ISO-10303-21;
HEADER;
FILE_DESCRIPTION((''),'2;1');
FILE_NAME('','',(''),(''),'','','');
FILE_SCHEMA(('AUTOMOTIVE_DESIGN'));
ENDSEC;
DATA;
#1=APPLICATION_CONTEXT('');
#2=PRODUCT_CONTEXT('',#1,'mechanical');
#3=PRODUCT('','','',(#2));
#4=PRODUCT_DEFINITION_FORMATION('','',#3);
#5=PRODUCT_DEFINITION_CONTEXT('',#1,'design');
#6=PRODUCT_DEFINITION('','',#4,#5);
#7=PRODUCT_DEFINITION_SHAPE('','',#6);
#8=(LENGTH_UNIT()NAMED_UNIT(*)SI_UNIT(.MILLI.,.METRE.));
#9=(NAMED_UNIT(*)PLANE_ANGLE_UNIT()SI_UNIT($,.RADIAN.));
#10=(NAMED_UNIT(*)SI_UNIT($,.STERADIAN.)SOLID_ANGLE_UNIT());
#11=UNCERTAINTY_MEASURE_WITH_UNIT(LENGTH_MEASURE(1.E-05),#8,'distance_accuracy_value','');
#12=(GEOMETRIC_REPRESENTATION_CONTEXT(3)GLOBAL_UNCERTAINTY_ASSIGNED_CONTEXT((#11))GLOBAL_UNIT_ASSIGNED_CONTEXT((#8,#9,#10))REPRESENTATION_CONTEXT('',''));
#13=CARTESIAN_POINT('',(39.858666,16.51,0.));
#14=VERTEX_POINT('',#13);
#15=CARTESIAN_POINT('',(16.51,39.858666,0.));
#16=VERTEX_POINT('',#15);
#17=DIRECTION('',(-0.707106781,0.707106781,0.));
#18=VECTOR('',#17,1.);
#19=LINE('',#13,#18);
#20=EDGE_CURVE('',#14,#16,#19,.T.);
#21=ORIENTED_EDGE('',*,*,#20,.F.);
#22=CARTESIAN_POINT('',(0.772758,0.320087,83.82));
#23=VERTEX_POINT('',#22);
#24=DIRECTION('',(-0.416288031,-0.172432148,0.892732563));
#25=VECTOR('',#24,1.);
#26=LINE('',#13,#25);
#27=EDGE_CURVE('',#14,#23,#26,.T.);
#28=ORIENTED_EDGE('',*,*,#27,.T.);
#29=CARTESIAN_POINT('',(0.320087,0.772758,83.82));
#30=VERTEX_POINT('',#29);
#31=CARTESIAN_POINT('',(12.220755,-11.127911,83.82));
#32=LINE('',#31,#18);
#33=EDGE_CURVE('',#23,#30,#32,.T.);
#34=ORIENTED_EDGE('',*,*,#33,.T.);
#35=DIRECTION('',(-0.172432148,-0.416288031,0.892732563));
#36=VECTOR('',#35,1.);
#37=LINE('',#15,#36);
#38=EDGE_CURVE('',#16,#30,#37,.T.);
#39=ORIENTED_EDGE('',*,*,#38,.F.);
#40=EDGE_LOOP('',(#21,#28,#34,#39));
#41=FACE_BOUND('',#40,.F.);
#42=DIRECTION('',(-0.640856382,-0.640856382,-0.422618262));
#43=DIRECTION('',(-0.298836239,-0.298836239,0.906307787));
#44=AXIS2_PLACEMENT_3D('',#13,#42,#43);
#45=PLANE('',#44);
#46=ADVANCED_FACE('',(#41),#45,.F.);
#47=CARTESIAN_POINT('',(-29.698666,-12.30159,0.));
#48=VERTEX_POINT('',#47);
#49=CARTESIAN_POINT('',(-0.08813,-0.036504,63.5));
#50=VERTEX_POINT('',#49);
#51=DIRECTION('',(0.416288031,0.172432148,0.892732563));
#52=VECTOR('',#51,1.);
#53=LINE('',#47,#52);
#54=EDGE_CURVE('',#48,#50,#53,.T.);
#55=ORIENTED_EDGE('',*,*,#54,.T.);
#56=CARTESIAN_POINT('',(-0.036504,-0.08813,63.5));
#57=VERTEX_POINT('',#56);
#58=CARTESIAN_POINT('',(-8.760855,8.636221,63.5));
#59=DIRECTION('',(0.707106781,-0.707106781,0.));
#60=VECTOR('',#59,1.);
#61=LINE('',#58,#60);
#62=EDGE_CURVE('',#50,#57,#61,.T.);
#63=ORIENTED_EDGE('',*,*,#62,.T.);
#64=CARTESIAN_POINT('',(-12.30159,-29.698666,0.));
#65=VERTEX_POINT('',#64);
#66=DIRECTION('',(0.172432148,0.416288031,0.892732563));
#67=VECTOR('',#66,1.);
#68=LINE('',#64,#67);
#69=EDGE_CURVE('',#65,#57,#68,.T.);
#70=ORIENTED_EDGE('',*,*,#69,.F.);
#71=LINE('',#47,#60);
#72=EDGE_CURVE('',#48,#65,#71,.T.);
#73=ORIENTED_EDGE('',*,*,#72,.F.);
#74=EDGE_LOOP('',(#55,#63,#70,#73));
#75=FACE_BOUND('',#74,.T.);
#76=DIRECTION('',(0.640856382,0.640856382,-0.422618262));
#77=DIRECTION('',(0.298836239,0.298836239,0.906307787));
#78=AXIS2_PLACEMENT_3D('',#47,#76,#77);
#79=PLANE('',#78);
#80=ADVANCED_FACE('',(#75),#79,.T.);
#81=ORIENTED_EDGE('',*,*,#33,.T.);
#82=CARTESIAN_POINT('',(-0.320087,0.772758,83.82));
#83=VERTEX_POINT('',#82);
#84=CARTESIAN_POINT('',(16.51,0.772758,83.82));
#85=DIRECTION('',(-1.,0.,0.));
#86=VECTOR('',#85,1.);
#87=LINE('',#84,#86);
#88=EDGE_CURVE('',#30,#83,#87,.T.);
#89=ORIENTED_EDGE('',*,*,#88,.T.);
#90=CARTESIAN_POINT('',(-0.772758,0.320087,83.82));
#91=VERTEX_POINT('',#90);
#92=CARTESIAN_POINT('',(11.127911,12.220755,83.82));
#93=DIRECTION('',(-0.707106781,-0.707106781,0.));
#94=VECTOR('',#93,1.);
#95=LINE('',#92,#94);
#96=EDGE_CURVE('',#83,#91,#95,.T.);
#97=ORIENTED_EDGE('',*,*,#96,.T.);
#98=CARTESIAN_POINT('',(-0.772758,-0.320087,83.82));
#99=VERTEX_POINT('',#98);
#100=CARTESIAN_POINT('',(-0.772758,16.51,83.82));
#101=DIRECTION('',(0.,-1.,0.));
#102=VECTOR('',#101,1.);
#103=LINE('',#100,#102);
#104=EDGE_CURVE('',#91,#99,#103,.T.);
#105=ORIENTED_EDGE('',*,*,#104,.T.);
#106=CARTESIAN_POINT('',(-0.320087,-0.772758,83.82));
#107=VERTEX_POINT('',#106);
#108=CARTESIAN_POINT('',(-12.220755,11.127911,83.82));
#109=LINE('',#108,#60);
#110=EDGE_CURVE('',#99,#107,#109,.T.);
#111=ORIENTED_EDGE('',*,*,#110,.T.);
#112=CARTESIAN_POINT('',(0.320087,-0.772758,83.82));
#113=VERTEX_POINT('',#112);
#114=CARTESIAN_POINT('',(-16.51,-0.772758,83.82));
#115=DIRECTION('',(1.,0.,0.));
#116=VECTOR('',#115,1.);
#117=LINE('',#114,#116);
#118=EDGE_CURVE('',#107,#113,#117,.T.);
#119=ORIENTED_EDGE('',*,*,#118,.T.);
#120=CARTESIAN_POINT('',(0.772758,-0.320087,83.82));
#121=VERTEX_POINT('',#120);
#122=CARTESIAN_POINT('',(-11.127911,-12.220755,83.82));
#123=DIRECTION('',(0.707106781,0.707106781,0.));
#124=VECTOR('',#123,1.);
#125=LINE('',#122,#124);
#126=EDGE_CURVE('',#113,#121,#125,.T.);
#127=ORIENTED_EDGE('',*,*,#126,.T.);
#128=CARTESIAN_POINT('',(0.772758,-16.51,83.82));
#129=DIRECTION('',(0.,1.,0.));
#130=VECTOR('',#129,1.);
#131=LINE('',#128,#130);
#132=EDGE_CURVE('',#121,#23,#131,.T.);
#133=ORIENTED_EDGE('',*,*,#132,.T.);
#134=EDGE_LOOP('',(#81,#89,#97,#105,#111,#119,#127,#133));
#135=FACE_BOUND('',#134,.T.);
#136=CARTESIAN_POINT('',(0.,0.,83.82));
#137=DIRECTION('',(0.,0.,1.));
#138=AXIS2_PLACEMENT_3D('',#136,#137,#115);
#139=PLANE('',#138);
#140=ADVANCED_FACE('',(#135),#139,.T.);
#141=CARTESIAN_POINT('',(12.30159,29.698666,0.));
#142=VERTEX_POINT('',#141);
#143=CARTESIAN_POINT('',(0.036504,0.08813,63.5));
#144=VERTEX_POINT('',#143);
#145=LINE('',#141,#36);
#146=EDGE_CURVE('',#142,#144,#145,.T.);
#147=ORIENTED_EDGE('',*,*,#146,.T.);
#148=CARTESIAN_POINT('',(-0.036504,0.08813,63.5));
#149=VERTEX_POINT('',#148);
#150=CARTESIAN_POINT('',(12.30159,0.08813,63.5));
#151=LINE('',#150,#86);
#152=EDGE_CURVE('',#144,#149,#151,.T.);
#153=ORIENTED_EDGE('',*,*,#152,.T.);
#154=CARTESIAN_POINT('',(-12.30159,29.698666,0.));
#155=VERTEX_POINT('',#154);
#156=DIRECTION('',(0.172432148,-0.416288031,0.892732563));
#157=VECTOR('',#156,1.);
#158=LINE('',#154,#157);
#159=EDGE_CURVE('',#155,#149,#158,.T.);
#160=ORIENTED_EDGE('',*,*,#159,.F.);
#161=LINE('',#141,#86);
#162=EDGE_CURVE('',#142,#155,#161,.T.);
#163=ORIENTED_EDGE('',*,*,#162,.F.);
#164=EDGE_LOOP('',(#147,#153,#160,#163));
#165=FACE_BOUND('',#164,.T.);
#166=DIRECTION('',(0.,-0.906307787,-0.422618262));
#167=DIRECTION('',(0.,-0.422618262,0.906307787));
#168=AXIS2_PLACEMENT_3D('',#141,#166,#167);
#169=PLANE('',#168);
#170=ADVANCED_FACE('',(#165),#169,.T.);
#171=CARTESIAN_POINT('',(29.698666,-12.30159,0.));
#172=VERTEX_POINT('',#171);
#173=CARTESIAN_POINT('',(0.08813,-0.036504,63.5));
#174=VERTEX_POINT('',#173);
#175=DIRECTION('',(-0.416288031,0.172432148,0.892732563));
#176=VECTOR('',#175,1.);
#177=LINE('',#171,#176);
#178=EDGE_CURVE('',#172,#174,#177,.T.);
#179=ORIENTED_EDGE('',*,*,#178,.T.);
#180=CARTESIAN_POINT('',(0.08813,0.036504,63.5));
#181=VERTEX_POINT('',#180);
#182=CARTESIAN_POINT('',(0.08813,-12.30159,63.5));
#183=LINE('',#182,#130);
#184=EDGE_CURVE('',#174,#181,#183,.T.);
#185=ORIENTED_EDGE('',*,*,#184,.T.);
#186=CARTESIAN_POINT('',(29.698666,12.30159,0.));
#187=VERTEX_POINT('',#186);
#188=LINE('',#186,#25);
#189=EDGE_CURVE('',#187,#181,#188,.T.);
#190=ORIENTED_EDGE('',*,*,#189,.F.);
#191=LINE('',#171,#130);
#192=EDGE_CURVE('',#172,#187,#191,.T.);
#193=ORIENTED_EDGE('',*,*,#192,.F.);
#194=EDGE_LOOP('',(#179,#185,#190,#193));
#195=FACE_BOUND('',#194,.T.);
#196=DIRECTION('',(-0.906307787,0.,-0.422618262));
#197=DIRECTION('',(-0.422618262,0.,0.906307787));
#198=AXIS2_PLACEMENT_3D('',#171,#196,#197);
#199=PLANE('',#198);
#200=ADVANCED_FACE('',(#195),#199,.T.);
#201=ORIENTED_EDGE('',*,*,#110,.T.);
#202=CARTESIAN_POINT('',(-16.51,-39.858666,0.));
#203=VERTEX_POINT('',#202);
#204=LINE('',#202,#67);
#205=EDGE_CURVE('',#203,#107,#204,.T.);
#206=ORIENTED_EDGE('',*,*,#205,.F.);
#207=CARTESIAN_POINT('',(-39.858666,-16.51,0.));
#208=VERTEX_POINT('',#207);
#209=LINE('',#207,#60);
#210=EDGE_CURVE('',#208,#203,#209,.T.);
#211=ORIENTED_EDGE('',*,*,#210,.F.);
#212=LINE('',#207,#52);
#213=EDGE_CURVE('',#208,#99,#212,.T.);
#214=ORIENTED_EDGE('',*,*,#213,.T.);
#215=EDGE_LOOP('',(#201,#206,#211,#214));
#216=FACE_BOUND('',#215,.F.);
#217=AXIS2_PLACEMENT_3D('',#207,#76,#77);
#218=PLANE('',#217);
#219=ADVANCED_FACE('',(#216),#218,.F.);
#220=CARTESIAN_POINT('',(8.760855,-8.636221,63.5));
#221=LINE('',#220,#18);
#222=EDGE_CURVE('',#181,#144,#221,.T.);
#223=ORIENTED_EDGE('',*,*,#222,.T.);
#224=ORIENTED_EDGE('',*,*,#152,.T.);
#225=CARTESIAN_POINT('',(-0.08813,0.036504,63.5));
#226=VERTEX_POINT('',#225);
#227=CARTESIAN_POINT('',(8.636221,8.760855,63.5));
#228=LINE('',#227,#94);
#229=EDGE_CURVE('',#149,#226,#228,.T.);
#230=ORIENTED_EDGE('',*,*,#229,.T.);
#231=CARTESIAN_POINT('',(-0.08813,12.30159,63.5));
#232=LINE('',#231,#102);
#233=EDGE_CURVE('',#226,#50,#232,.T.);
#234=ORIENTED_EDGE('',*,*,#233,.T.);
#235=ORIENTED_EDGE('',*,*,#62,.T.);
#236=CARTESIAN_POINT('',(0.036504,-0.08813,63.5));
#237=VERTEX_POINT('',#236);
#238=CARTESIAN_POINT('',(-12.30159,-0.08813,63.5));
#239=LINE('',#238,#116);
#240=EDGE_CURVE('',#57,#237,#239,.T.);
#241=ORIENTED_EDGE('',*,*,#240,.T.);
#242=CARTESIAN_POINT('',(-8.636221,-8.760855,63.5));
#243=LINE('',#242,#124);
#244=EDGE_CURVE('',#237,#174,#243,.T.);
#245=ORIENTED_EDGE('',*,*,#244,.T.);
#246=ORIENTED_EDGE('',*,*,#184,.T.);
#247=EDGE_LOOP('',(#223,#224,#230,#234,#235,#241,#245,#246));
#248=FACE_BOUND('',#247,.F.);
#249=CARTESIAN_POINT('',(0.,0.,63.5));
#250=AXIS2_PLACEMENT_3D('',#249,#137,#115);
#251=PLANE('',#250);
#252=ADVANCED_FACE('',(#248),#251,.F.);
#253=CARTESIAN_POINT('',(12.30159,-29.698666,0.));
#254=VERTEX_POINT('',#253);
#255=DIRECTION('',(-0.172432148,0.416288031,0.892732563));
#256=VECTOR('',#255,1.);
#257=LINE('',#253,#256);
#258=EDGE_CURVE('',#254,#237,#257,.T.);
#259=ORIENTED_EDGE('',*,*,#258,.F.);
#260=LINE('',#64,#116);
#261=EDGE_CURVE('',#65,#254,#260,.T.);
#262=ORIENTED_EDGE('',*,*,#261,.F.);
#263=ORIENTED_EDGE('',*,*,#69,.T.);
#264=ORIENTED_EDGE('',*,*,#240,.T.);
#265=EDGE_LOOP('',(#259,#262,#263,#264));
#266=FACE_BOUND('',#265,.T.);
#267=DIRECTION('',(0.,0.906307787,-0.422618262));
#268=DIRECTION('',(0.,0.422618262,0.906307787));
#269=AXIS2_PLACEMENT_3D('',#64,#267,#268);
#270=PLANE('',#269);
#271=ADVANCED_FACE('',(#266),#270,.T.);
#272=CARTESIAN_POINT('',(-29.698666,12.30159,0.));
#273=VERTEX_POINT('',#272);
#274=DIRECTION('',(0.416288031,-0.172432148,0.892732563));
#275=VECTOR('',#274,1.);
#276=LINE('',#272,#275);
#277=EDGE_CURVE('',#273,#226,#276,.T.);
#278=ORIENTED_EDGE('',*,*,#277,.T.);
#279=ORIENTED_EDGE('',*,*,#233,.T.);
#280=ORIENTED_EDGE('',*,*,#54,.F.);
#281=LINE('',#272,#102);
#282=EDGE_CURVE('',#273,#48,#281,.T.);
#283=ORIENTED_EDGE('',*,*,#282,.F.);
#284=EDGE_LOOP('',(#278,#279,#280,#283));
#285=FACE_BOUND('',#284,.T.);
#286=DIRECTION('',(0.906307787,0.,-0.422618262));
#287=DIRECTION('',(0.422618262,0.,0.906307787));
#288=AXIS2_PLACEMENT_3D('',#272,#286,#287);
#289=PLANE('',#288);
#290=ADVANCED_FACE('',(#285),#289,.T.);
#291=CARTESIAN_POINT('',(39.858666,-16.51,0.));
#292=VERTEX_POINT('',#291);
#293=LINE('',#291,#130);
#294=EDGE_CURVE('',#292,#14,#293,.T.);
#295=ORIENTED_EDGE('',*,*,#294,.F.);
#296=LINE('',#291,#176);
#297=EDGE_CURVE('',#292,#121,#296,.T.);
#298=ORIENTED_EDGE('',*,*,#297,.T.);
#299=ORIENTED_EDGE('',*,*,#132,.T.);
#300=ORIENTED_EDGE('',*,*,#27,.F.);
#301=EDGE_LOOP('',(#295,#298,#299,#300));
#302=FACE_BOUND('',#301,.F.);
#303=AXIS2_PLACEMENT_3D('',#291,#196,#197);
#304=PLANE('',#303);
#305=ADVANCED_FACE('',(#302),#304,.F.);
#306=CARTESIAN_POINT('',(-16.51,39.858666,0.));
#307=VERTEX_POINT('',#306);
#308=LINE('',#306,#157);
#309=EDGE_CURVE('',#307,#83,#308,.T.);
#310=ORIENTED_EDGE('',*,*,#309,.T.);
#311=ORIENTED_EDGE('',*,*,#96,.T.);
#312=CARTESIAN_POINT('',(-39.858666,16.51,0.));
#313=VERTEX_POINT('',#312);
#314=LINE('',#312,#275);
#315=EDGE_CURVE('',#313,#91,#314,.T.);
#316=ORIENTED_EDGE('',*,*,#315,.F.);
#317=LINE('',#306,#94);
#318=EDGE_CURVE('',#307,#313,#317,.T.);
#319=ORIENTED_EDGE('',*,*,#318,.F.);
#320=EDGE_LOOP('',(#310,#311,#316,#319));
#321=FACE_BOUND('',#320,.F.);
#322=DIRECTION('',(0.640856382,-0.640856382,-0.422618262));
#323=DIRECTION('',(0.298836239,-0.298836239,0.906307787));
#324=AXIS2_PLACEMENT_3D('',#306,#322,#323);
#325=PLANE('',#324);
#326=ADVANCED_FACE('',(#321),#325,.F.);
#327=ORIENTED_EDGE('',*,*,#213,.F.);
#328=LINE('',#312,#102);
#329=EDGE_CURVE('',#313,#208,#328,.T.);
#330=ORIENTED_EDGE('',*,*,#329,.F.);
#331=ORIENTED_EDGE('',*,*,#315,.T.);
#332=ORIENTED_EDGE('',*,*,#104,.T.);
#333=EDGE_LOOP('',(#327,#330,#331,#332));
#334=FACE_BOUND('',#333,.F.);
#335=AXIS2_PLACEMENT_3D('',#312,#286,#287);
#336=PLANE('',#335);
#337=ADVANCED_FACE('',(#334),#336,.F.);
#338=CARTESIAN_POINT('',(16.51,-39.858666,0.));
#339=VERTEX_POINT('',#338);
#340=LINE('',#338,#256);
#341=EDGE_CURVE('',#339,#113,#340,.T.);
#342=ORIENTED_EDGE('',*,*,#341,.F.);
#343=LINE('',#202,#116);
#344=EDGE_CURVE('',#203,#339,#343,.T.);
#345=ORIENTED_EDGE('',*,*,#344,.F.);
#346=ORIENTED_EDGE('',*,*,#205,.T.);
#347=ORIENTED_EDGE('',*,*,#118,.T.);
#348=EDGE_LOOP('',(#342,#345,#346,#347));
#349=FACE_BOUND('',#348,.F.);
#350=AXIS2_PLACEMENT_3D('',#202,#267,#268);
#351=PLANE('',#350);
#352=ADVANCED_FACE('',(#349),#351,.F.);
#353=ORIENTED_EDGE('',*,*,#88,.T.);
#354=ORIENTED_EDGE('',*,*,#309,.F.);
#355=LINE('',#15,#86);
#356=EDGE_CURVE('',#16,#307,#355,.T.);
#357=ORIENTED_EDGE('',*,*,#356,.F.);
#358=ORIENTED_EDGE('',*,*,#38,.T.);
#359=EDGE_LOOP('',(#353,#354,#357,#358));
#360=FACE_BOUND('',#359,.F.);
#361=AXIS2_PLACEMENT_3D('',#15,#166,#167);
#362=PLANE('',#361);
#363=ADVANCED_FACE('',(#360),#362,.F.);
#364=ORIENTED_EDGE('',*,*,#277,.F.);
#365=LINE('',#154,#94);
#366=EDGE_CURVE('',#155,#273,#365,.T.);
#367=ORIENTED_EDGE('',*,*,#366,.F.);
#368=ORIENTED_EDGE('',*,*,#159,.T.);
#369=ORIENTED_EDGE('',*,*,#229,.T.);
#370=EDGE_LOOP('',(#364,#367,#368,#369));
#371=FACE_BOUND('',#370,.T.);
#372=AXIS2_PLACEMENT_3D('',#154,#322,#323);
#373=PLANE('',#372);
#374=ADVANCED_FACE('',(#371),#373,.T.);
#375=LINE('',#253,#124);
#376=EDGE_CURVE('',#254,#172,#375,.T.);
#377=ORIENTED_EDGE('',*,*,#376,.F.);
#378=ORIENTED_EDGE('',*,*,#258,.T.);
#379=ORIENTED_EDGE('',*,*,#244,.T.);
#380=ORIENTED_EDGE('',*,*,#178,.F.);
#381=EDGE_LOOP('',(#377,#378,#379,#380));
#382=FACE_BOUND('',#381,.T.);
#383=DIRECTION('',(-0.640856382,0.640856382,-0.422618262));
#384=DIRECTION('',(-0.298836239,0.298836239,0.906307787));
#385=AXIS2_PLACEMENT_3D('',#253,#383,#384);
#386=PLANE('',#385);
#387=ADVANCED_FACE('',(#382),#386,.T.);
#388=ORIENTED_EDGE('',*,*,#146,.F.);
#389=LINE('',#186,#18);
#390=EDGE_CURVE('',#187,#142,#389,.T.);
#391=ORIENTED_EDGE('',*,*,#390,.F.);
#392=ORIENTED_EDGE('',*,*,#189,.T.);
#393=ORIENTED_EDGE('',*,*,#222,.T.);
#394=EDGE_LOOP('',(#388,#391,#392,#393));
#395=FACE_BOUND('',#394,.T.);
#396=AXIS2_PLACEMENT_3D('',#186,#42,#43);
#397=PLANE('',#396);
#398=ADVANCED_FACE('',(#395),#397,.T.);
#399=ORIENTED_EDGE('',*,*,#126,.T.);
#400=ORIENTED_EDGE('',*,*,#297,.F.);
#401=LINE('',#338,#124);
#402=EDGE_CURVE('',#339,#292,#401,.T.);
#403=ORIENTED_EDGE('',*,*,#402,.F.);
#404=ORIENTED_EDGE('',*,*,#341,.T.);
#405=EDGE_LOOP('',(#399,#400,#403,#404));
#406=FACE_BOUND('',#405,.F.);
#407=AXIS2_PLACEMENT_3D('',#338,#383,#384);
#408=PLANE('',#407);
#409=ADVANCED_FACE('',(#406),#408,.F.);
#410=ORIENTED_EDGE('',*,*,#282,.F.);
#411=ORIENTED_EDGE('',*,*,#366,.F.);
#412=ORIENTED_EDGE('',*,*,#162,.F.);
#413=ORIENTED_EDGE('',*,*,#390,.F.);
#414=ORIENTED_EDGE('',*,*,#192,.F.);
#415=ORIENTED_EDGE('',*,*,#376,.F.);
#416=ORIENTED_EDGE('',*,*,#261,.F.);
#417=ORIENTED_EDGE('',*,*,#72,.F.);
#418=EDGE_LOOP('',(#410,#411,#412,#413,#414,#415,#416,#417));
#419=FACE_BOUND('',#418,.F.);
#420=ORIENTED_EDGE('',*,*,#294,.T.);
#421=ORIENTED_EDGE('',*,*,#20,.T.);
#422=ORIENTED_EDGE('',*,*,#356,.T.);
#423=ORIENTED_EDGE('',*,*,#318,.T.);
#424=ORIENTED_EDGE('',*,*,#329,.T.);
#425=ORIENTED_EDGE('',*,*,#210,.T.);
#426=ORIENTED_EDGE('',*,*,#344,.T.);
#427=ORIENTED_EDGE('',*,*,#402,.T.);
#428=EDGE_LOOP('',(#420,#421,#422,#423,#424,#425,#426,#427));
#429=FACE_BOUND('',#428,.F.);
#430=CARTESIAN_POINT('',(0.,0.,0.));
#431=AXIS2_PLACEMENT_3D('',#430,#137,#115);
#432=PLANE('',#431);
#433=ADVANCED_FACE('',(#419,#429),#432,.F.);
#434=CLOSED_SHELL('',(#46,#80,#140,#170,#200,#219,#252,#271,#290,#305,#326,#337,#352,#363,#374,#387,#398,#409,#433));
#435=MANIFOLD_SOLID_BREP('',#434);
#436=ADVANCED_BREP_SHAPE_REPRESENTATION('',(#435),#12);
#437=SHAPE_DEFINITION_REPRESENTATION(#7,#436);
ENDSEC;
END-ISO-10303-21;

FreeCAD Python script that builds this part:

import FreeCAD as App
import Part
import Sketcher

V = App.Vector
Q = App.Units.Quantity


def add_polygon(sketch, points):
    """Adds a closed chain of lines whose ends are joined by coincident constraints."""
    first, n = sketch.GeometryCount, len(points)
    for a, b in zip(points, points[1:] + points[:1]):
        sketch.addGeometry(Part.LineSegment(App.Vector(*a, 0), App.Vector(*b, 0)), False)
    for i in range(n):
        sketch.addConstraint(Sketcher.Constraint("Coincident", first + i, 2, first + (i + 1) % n, 1))

doc = App.newDocument("Part")
body = doc.addObject("PartDesign::Body", "Body")

# Sketch on XY plane
sketch1 = body.newObject("Sketcher::SketchObject", "Sketch")
sketch1.AttachmentSupport = (doc.getObject("XY_Plane"), [""])
sketch1.MapMode = "FlatFace"
add_polygon(sketch1, [(16.51, 39.858666), (-16.51, 39.858666), (-39.858666, 16.51), (-39.858666, -16.51), (-16.51, -39.858666), (16.51, -39.858666), (39.858666, -16.51), (39.858666, 16.51)])  # lines 0-7
sketch1.addConstraint(Sketcher.Constraint("Horizontal", 0))
sketch1.addConstraint(Sketcher.Constraint("Vertical", 2))
sketch1.addConstraint(Sketcher.Constraint("Horizontal", 4))
sketch1.addConstraint(Sketcher.Constraint("Vertical", 6))
sketch1.addConstraint(Sketcher.Constraint("Symmetric", 0, 2, 4, 2, -1, 1))
sketch1.addConstraint(Sketcher.Constraint("Symmetric", 1, 2, 5, 2, -1, 1))
sketch1.addConstraint(Sketcher.Constraint("Perpendicular", 1, 3))
sketch1.addConstraint(Sketcher.Constraint("Perpendicular", 5, 7))
sketch1.addConstraint(Sketcher.Constraint("Horizontal", 2, 2, 5, 2))
sketch1.addConstraint(Sketcher.Constraint("Horizontal", 1, 2, 6, 2))
sketch1.addConstraint(Sketcher.Constraint("Vertical", 0, 2, 3, 2))
sketch1.addConstraint(Sketcher.Constraint("Equal", 4, 2))
sketch1.addConstraint(Sketcher.Constraint("DistanceX", 0, 2, 0, 1, Q("1.3 in")))
sketch1.addConstraint(Sketcher.Constraint("Distance", 1, Q("1.3 in")))
pad1 = body.newObject("PartDesign::Pad", "Pad")
pad1.Profile = sketch1
pad1.Length = Q("3.3 in")
pad1.TaperAngle = -25

# Sketch on XY plane
sketch2 = body.newObject("Sketcher::SketchObject", "Sketch001")
sketch2.AttachmentSupport = (doc.getObject("XY_Plane"), [""])
sketch2.MapMode = "FlatFace"
add_polygon(sketch2, [(29.698666, -12.30159), (29.698666, 12.30159), (12.30159, 29.698666), (-12.30159, 29.698666), (-29.698666, 12.30159), (-29.698666, -12.30159), (-12.30159, -29.698666), (12.30159, -29.698666)])  # lines 0-7
sketch2.addConstraint(Sketcher.Constraint("Vertical", 0))
sketch2.addConstraint(Sketcher.Constraint("Horizontal", 2))
sketch2.addConstraint(Sketcher.Constraint("Vertical", 4))
sketch2.addConstraint(Sketcher.Constraint("Horizontal", 6))
sketch2.addConstraint(Sketcher.Constraint("Symmetric", 0, 2, 4, 2, -1, 1))
sketch2.addConstraint(Sketcher.Constraint("Symmetric", 1, 2, 5, 2, -1, 1))
sketch2.addConstraint(Sketcher.Constraint("Perpendicular", 1, 3))
sketch2.addConstraint(Sketcher.Constraint("Perpendicular", 5, 7))
sketch2.addConstraint(Sketcher.Constraint("Horizontal", 0, 2, 3, 2))
sketch2.addConstraint(Sketcher.Constraint("Horizontal", 4, 2, 7, 2))
sketch2.addConstraint(Sketcher.Constraint("Vertical", 2, 2, 5, 2))
sketch2.addConstraint(Sketcher.Constraint("Equal", 6, 0))
sketch2.addConstraint(Sketcher.Constraint("DistanceX", 2, 2, 2, 1, 24.60318))
sketch2.addConstraint(Sketcher.Constraint("Distance", 1, 24.60318))
pocket1 = body.newObject("PartDesign::Pocket", "Pocket")
pocket1.Profile = sketch2
pocket1.Length = Q("2.5 in")
pocket1.Reversed = True
pocket1.TaperAngle = -25

doc.recompute()
